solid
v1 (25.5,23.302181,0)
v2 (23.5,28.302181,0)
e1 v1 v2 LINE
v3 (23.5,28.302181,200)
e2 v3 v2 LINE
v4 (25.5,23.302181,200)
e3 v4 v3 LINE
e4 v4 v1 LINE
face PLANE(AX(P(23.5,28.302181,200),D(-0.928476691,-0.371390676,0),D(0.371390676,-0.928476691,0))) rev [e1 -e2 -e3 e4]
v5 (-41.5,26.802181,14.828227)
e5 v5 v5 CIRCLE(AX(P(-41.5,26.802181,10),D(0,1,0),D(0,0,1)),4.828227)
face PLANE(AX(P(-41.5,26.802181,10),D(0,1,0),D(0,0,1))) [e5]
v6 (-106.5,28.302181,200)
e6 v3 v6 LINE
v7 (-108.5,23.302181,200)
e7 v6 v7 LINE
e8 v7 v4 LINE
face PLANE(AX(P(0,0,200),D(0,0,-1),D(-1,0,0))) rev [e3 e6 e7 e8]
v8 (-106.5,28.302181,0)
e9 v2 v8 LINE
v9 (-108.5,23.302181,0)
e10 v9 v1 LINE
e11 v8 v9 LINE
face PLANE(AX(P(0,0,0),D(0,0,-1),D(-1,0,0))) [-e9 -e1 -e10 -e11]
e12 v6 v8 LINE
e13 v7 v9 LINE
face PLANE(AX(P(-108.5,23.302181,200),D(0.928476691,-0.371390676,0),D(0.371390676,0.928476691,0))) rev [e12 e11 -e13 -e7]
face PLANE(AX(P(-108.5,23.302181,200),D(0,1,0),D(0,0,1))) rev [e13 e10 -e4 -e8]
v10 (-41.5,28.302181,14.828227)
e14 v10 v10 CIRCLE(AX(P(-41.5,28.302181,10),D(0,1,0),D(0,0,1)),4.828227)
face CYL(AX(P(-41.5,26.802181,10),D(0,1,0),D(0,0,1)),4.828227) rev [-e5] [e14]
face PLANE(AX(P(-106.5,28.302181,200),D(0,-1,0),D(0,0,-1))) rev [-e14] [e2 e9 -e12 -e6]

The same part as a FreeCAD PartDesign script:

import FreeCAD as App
import Part
import Sketcher
Q = App.Units.Quantity

doc = App.newDocument("Part")
params = doc.addObject("Spreadsheet::Sheet", "Params")
for row, (alias, value) in enumerate([
    ("sketch1_width", "130 mm"),
    ("sketch1_width2", "134 mm"),
    ("pad1_length", "200 mm"),
    ("pocket1_length", "1.5 mm"),
], start=1):
    params.set(f"A{row}", alias)
    params.set(f"B{row}", "=" + value)
    params.setAlias(f"B{row}", alias)

body = doc.addObject("PartDesign::Body", "Body")

# Sketch on XY plane
sketch1 = body.newObject("Sketcher::SketchObject", "Sketch")
sketch1.AttachmentSupport = (doc.getObject("XY_Plane"), [""])
sketch1.MapMode = "FlatFace"
sketch1.addGeometry([
    Part.LineSegment(App.Vector(24, 28, 0), App.Vector(-106, 28, 0)),
    Part.LineSegment(App.Vector(-106, 28, 0), App.Vector(-108, 23, 0)),
    Part.LineSegment(App.Vector(-108, 23, 0), App.Vector(26, 23, 0)),
    Part.LineSegment(App.Vector(26, 23, 0), App.Vector(24, 28, 0)),
], False)
sketch1.addConstraint([
    Sketcher.Constraint("Coincident", 0, 2, 1, 1),
    Sketcher.Constraint("Coincident", 1, 2, 2, 1),
    Sketcher.Constraint("Coincident", 2, 2, 3, 1),
    Sketcher.Constraint("Coincident", 3, 2, 0, 1),
    Sketcher.Constraint("Horizontal", 0),
    Sketcher.Constraint("Horizontal", 2),
    Sketcher.Constraint("Equal", 1, 3),
    Sketcher.Constraint("DistanceX", 0, 2, 0, 1, Q("130 mm")),
    Sketcher.Constraint("DistanceX", 2, 1, 2, 2, Q("134 mm")),
    Sketcher.Constraint("DistanceY", 1, 2, 0, 2, Q("5 mm")),
    Sketcher.Constraint("DistanceX", 0, 2, -1, 1, Q("106.5 mm")),
    Sketcher.Constraint("DistanceY", -1, 1, 0, 2, Q("28.302181 mm")),
])
sketch1.setExpression("Constraints[7]", "Params.sketch1_width")
sketch1.setExpression("Constraints[8]", "Params.sketch1_width2")
pad1 = body.newObject("PartDesign::Pad", "Pad")
pad1.Profile = sketch1
pad1.setExpression("Length", "Params.pad1_length")

# Sketch on XZ plane
sketch2 = body.newObject("Sketcher::SketchObject", "Sketch001")
sketch2.AttachmentSupport = (doc.getObject("XZ_Plane"), [""])
sketch2.MapMode = "FlatFace"
sketch2.AttachmentOffset = App.Placement(App.Vector(0, 0, -28.302181), App.Rotation())
sketch2.addGeometry(Part.Circle(App.Vector(-41.5, 10, 0), App.Vector(0, 0, 1), 4.8), False)
sketch2.addConstraint([
    Sketcher.Constraint("DistanceY", -1, 1, 0, 3, Q("10 mm")),
    Sketcher.Constraint("DistanceX", 0, 3, -1, 1, Q("41.5 mm")),
    Sketcher.Constraint("Diameter", 0, Q("9.656453 mm")),
])
pocket1 = body.newObject("PartDesign::Pocket", "Pocket")
pocket1.Profile = sketch2
pocket1.setExpression("Length", "Params.pocket1_length")
pocket1.Reversed = True

doc.recompute()
